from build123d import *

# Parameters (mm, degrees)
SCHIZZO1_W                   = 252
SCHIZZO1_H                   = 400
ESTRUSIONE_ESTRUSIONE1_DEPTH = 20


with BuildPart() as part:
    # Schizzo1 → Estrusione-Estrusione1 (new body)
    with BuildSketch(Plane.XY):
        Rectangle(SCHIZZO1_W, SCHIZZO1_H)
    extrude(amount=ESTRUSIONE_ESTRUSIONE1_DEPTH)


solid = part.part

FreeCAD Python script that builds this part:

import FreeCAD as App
import Part
import Sketcher
Q = App.Units.Quantity

doc = App.newDocument("Part")
body = doc.addObject("PartDesign::Body", "Body")

sketch1 = body.newObject("Sketcher::SketchObject", "Sketch")
sketch1.AttachmentSupport = (doc.getObject("XY_Plane"), [""])
sketch1.MapMode = "FlatFace"
sketch1.addGeometry(Part.LineSegment(App.Vector(-126, 200, 0), App.Vector(-126, -200, 0)), False)
sketch1.addGeometry(Part.LineSegment(App.Vector(-126, -200, 0), App.Vector(126, -200, 0)), False)
sketch1.addGeometry(Part.LineSegment(App.Vector(126, -200, 0), App.Vector(126, 200, 0)), False)
sketch1.addGeometry(Part.LineSegment(App.Vector(126, 200, 0), App.Vector(-126, 200, 0)), False)
sketch1.addConstraint(Sketcher.Constraint("Coincident", 0, 2, 1, 1))
sketch1.addConstraint(Sketcher.Constraint("Coincident", 1, 2, 2, 1))
sketch1.addConstraint(Sketcher.Constraint("Coincident", 2, 2, 3, 1))
sketch1.addConstraint(Sketcher.Constraint("Coincident", 3, 2, 0, 1))
sketch1.addConstraint(Sketcher.Constraint("Vertical", 0))
sketch1.addConstraint(Sketcher.Constraint("Horizontal", 1))
sketch1.addConstraint(Sketcher.Constraint("Vertical", 2))
sketch1.addConstraint(Sketcher.Constraint("Horizontal", 3))
sketch1.addConstraint(Sketcher.Constraint("Symmetric", 0, 2, 2, 2, -1, 1))
sketch1.addConstraint(Sketcher.Constraint("DistanceX", 1, 1, 1, 2, Q("252 mm")))
sketch1.addConstraint(Sketcher.Constraint("DistanceY", 0, 2, 0, 1, Q("400 mm")))
pad1 = body.newObject("PartDesign::Pad", "Pad")
pad1.Profile = sketch1
pad1.Length = 20

doc.recompute()
